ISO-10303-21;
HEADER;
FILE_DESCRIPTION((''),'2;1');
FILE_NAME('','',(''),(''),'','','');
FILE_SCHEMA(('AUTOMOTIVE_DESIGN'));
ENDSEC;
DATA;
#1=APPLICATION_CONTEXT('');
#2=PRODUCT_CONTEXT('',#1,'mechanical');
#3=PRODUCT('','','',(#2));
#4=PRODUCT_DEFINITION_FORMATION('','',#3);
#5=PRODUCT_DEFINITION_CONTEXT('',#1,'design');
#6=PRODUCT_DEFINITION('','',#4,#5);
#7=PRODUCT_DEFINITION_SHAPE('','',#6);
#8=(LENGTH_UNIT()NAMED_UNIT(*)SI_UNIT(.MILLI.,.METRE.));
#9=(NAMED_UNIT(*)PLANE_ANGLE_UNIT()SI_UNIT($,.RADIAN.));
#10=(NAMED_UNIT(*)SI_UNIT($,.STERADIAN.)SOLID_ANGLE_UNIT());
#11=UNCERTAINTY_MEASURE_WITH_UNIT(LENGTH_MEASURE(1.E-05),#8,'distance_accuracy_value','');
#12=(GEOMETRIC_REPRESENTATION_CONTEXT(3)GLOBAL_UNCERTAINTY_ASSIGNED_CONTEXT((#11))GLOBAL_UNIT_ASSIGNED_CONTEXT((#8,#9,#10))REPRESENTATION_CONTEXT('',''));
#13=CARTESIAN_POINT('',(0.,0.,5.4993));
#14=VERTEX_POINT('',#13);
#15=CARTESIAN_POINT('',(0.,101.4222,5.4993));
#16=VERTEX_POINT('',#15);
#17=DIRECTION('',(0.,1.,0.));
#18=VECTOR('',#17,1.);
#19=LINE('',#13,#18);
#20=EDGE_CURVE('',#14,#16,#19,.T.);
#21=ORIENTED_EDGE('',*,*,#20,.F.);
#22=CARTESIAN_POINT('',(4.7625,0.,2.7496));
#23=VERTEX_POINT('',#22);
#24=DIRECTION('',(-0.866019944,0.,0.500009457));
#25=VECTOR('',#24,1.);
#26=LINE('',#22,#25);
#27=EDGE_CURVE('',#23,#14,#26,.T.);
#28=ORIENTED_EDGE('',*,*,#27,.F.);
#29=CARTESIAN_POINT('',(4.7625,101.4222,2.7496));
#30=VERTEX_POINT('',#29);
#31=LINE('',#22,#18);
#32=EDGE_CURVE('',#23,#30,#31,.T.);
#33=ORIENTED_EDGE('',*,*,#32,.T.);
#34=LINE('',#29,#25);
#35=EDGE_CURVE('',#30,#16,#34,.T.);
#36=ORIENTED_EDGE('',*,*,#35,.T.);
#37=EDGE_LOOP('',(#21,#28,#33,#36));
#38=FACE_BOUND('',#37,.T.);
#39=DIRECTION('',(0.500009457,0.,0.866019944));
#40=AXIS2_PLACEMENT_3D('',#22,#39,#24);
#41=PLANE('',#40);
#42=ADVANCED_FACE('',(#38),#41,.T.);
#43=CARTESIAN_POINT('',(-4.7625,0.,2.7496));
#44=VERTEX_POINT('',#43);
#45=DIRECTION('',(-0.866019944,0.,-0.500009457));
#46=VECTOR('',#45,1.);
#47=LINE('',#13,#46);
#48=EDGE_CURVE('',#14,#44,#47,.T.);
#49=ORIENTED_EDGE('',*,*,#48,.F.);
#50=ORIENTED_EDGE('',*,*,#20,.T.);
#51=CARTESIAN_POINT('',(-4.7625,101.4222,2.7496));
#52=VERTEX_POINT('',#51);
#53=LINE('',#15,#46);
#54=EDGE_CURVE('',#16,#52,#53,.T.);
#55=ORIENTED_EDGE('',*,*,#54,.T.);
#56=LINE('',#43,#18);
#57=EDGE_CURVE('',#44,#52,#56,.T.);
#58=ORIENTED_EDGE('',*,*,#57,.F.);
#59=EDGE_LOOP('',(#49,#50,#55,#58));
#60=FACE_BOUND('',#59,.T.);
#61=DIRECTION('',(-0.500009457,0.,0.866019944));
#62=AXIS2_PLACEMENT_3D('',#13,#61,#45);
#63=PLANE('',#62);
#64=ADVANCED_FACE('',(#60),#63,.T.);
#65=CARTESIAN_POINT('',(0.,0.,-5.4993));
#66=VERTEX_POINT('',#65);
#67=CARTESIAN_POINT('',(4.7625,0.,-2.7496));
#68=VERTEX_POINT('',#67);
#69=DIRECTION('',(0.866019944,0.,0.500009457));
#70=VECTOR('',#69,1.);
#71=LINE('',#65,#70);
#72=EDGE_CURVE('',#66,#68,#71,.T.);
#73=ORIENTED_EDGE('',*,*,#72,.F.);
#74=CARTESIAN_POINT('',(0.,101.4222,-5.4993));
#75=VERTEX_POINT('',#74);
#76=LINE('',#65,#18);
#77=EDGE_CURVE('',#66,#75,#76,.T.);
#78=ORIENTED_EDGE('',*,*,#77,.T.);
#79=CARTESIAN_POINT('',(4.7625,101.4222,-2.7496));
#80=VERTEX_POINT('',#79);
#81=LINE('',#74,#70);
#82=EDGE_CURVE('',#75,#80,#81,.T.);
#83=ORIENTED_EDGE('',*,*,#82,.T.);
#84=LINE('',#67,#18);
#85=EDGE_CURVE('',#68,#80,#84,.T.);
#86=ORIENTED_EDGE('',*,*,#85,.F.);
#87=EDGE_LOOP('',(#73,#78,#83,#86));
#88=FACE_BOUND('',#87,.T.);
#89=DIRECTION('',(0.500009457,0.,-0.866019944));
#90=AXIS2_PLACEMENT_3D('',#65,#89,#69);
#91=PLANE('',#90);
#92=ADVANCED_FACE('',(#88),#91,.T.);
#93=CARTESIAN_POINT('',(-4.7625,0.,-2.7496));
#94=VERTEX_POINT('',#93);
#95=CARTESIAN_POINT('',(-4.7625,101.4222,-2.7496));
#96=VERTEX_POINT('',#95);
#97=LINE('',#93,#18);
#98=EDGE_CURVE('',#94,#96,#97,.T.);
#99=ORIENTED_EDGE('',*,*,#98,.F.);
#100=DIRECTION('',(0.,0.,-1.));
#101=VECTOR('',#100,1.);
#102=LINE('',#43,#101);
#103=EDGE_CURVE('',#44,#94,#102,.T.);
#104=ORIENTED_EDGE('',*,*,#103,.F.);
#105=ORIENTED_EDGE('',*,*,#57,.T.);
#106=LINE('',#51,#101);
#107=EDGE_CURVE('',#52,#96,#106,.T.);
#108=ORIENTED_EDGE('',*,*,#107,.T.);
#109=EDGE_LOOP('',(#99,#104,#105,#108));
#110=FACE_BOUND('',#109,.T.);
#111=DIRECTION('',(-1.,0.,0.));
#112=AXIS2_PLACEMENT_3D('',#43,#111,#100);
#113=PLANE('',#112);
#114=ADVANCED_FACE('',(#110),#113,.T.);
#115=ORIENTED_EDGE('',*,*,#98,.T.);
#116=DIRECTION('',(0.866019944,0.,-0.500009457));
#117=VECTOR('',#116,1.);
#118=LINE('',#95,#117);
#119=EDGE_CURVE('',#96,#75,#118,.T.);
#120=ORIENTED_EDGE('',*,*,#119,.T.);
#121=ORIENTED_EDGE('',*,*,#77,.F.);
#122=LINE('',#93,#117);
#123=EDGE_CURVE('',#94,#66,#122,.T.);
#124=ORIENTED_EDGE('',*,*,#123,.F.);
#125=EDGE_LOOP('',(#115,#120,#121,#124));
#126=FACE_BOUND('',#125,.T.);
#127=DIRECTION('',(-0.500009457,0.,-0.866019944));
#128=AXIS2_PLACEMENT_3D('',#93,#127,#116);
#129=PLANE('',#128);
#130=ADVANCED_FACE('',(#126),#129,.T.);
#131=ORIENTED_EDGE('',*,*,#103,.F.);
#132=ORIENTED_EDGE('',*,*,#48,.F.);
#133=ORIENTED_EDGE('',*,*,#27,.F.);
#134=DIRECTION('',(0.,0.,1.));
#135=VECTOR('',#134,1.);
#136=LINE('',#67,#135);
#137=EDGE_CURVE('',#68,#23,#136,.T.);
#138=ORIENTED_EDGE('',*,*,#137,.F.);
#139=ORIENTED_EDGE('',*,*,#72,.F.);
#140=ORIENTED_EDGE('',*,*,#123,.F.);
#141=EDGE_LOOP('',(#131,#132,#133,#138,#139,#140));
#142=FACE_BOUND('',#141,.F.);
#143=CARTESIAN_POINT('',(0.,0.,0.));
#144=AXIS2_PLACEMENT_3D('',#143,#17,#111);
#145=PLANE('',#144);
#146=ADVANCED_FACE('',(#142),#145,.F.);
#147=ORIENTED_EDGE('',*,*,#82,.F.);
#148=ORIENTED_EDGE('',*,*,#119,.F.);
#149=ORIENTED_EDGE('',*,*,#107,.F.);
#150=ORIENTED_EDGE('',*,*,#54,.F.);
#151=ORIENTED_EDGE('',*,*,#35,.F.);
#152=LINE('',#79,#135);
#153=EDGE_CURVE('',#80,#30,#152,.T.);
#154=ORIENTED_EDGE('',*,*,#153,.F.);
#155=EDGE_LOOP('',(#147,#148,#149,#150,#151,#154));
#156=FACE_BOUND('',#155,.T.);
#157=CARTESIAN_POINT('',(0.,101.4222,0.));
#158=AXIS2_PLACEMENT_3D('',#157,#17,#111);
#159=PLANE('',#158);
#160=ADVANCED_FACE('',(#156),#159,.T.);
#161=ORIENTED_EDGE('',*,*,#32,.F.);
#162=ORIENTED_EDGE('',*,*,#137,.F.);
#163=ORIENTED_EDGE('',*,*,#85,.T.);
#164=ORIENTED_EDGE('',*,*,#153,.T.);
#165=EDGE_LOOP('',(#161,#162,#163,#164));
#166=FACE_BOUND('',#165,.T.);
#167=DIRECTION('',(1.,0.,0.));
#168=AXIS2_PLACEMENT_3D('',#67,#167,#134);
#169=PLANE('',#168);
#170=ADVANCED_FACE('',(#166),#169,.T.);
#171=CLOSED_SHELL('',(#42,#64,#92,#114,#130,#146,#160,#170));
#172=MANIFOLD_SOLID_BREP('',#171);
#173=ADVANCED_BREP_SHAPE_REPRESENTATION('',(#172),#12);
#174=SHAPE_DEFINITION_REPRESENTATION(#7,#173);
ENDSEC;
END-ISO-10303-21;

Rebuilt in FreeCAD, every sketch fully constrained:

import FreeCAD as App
import Part
import Sketcher

V = App.Vector
Q = App.Units.Quantity


def add_polygon(sketch, points):
    """Adds a closed chain of lines whose ends are joined by coincident constraints."""
    first, n = sketch.GeometryCount, len(points)
    for a, b in zip(points, points[1:] + points[:1]):
        sketch.addGeometry(Part.LineSegment(App.Vector(*a, 0), App.Vector(*b, 0)), False)
    for i in range(n):
        sketch.addConstraint(Sketcher.Constraint("Coincident", first + i, 2, first + (i + 1) % n, 1))

doc = App.newDocument("Part")
body = doc.addObject("PartDesign::Body", "Body")

sketch1 = body.newObject("Sketcher::SketchObject", "Sketch")
sketch1.AttachmentSupport = (doc.getObject("XZ_Plane"), [""])
sketch1.MapMode = "FlatFace"
add_polygon(sketch1, [(-5, 3), (0, 5), (5, 3), (5, -3), (0, -5), (-5, -3)])
sketch1.addConstraint([
    Sketcher.Constraint("Vertical", 2),
    Sketcher.Constraint("Vertical", 5),
    Sketcher.Constraint("Symmetric", 0, 2, 3, 2, -1, 1),
    Sketcher.Constraint("Symmetric", 1, 2, 4, 2, -1, 1),
    Sketcher.Constraint("PointOnObject", 0, 2, -2),
    Sketcher.Constraint("Parallel", 0, 3),
    Sketcher.Constraint("Horizontal", 2, 2, 4, 2),
    Sketcher.Constraint("Angle", 0, Q("30.0006 deg")),
    Sketcher.Constraint("DistanceX", 4, 2, 2, 2, Q("0.375 in")),
    Sketcher.Constraint("DistanceY", 2, 2, 2, 1, Q("0.2165 in")),
])
pad1 = body.newObject("PartDesign::Pad", "Pad")
pad1.Profile = sketch1
pad1.Length = Q("3.993 in")
pad1.Reversed = True

doc.recompute()
